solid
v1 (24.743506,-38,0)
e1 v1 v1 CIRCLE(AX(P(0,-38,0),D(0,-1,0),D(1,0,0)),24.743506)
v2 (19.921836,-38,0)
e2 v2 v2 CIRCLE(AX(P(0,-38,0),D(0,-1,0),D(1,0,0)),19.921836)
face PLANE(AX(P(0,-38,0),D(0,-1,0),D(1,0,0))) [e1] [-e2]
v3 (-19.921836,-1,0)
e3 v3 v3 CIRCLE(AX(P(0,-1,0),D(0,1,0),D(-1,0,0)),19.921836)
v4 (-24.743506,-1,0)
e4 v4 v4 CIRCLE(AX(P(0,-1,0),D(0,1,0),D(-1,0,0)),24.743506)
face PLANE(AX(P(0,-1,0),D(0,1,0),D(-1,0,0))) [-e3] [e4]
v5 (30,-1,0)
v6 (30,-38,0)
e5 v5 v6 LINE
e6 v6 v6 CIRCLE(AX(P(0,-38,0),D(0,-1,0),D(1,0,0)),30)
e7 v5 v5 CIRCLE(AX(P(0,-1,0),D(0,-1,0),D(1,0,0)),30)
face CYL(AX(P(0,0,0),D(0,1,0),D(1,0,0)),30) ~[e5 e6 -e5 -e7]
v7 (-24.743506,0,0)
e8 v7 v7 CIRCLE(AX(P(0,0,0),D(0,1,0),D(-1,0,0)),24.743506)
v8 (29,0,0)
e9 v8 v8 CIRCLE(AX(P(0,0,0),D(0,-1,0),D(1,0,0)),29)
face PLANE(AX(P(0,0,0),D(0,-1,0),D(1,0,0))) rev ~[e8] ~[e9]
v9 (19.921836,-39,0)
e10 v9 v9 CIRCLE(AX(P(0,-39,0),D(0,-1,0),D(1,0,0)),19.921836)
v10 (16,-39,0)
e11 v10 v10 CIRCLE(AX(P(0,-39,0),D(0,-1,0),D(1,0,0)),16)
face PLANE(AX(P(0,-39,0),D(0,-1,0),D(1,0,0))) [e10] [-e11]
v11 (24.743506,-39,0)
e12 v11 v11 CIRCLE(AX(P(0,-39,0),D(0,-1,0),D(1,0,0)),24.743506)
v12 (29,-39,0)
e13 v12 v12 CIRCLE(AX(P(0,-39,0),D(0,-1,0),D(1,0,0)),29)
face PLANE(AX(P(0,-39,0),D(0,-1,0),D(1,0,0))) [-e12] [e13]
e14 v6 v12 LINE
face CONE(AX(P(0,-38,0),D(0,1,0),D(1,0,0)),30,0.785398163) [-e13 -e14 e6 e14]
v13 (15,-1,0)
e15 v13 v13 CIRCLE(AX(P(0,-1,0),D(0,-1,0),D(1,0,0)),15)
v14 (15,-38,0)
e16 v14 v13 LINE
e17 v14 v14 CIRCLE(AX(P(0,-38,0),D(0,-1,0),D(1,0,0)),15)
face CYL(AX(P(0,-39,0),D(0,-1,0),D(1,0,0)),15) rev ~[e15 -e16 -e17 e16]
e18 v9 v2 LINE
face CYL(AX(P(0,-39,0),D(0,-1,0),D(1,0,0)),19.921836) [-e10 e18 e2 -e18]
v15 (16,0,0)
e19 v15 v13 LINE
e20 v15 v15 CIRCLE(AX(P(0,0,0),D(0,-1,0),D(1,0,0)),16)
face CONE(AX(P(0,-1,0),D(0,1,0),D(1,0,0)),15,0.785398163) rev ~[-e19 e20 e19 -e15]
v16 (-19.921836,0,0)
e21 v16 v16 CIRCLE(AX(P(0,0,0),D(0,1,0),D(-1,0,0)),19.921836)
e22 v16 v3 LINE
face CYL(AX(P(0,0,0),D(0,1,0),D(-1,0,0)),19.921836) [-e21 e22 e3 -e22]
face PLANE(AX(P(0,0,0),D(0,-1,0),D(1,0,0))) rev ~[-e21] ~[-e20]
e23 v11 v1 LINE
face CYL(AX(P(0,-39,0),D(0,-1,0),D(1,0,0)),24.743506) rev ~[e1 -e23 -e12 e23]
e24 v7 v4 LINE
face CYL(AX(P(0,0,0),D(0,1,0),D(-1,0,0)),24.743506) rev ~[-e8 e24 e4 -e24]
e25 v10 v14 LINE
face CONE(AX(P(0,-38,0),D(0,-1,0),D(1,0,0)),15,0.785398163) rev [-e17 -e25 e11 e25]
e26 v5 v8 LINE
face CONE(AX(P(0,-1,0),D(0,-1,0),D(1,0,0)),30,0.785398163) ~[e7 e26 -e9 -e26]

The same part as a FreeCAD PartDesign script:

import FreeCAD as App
import Part
import Sketcher

V = App.Vector


def edges_at(feature, points):
    """Names of the edges that pass closest to the given points."""
    edges = feature.Shape.Edges
    near = lambda p: min(range(len(edges)), key=lambda i: edges[i].distToShape(Part.Vertex(*p))[0])
    return sorted({f"Edge{near(p) + 1}" for p in points})

doc = App.newDocument("Part")
body = doc.addObject("PartDesign::Body", "Body")

# Sketch on XZ plane
sketch1 = body.newObject("Sketcher::SketchObject", "Sketch")
sketch1.AttachmentSupport = (doc.getObject("XZ_Plane"), [""])
sketch1.MapMode = "FlatFace"
sketch1.addGeometry(Part.Circle(V(0, 0, 0), V(0, 0, 1), 30), False)
sketch1.addConstraint([
    Sketcher.Constraint("Coincident", 0, 3, -1, 1),
    Sketcher.Constraint("Diameter", 0, 60.0),
])
pad1 = body.newObject("PartDesign::Pad", "Pad")
pad1.Profile = sketch1
pad1.Length = 39

# Sketch on XZ plane
sketch2 = body.newObject("Sketcher::SketchObject", "Sketch001")
sketch2.AttachmentSupport = (doc.getObject("XZ_Plane"), [""])
sketch2.MapMode = "FlatFace"
sketch2.AttachmentOffset = App.Placement(V(0, 0, 39), App.Rotation())
sketch2.addGeometry(Part.Circle(V(0, 0, 0), V(0, 0, 1), 15), False)
sketch2.addConstraint([
    Sketcher.Constraint("Coincident", 0, 3, -1, 1),
    Sketcher.Constraint("Diameter", 0, 30.0),
])
pocket1 = body.newObject("PartDesign::Pocket", "Pocket")
pocket1.Profile = sketch2
pocket1.Type = "ThroughAll"
doc.recompute()

chamfer = body.newObject("PartDesign::Chamfer", "Chamfer")
chamfer.Base = (pocket1, edges_at(pocket1, [
    (-30, -39, 0),
    (-15, -39, 0),
    (-30, 0, 0),
    (-15, 0, 0),
]))
chamfer.Size = 1

# Sketch on XZ plane
sketch3 = body.newObject("Sketcher::SketchObject", "Sketch002")
sketch3.AttachmentSupport = (doc.getObject("XZ_Plane"), [""])
sketch3.MapMode = "FlatFace"
sketch3.addGeometry([
    Part.Circle(V(0, 0, 0), V(0, 0, 1), 25),
    Part.Circle(V(0, 0, 0), V(0, 0, 1), 20),
], False)
sketch3.addConstraint([
    Sketcher.Constraint("Coincident", 0, 3, -1, 1),
    Sketcher.Constraint("Coincident", 1, 3, -1, 1),
    Sketcher.Constraint("Diameter", 1, 39.843672),
    Sketcher.Constraint("Diameter", 0, 49.487012),
])
pocket2 = body.newObject("PartDesign::Pocket", "Pocket001")
pocket2.Profile = sketch3
pocket2.Length = 1
pocket2.Reversed = True

# Sketch on XZ plane
sketch4 = body.newObject("Sketcher::SketchObject", "Sketch003")
sketch4.AttachmentSupport = (doc.getObject("XZ_Plane"), [""])
sketch4.MapMode = "FlatFace"
sketch4.AttachmentOffset = App.Placement(V(0, 0, 39), App.Rotation())
sketch4.addGeometry([
    Part.Circle(V(0, 0, 0), V(0, 0, 1), 25),
    Part.Circle(V(0, 0, 0), V(0, 0, 1), 20),
], False)
sketch4.addConstraint([
    Sketcher.Constraint("Coincident", 0, 3, -1, 1),
    Sketcher.Constraint("Coincident", 1, 3, -1, 1),
    Sketcher.Constraint("Diameter", 1, 39.843672),
    Sketcher.Constraint("Diameter", 0, 49.487012),
])
pocket3 = body.newObject("PartDesign::Pocket", "Pocket002")
pocket3.Profile = sketch4
pocket3.Length = 1

doc.recompute()
